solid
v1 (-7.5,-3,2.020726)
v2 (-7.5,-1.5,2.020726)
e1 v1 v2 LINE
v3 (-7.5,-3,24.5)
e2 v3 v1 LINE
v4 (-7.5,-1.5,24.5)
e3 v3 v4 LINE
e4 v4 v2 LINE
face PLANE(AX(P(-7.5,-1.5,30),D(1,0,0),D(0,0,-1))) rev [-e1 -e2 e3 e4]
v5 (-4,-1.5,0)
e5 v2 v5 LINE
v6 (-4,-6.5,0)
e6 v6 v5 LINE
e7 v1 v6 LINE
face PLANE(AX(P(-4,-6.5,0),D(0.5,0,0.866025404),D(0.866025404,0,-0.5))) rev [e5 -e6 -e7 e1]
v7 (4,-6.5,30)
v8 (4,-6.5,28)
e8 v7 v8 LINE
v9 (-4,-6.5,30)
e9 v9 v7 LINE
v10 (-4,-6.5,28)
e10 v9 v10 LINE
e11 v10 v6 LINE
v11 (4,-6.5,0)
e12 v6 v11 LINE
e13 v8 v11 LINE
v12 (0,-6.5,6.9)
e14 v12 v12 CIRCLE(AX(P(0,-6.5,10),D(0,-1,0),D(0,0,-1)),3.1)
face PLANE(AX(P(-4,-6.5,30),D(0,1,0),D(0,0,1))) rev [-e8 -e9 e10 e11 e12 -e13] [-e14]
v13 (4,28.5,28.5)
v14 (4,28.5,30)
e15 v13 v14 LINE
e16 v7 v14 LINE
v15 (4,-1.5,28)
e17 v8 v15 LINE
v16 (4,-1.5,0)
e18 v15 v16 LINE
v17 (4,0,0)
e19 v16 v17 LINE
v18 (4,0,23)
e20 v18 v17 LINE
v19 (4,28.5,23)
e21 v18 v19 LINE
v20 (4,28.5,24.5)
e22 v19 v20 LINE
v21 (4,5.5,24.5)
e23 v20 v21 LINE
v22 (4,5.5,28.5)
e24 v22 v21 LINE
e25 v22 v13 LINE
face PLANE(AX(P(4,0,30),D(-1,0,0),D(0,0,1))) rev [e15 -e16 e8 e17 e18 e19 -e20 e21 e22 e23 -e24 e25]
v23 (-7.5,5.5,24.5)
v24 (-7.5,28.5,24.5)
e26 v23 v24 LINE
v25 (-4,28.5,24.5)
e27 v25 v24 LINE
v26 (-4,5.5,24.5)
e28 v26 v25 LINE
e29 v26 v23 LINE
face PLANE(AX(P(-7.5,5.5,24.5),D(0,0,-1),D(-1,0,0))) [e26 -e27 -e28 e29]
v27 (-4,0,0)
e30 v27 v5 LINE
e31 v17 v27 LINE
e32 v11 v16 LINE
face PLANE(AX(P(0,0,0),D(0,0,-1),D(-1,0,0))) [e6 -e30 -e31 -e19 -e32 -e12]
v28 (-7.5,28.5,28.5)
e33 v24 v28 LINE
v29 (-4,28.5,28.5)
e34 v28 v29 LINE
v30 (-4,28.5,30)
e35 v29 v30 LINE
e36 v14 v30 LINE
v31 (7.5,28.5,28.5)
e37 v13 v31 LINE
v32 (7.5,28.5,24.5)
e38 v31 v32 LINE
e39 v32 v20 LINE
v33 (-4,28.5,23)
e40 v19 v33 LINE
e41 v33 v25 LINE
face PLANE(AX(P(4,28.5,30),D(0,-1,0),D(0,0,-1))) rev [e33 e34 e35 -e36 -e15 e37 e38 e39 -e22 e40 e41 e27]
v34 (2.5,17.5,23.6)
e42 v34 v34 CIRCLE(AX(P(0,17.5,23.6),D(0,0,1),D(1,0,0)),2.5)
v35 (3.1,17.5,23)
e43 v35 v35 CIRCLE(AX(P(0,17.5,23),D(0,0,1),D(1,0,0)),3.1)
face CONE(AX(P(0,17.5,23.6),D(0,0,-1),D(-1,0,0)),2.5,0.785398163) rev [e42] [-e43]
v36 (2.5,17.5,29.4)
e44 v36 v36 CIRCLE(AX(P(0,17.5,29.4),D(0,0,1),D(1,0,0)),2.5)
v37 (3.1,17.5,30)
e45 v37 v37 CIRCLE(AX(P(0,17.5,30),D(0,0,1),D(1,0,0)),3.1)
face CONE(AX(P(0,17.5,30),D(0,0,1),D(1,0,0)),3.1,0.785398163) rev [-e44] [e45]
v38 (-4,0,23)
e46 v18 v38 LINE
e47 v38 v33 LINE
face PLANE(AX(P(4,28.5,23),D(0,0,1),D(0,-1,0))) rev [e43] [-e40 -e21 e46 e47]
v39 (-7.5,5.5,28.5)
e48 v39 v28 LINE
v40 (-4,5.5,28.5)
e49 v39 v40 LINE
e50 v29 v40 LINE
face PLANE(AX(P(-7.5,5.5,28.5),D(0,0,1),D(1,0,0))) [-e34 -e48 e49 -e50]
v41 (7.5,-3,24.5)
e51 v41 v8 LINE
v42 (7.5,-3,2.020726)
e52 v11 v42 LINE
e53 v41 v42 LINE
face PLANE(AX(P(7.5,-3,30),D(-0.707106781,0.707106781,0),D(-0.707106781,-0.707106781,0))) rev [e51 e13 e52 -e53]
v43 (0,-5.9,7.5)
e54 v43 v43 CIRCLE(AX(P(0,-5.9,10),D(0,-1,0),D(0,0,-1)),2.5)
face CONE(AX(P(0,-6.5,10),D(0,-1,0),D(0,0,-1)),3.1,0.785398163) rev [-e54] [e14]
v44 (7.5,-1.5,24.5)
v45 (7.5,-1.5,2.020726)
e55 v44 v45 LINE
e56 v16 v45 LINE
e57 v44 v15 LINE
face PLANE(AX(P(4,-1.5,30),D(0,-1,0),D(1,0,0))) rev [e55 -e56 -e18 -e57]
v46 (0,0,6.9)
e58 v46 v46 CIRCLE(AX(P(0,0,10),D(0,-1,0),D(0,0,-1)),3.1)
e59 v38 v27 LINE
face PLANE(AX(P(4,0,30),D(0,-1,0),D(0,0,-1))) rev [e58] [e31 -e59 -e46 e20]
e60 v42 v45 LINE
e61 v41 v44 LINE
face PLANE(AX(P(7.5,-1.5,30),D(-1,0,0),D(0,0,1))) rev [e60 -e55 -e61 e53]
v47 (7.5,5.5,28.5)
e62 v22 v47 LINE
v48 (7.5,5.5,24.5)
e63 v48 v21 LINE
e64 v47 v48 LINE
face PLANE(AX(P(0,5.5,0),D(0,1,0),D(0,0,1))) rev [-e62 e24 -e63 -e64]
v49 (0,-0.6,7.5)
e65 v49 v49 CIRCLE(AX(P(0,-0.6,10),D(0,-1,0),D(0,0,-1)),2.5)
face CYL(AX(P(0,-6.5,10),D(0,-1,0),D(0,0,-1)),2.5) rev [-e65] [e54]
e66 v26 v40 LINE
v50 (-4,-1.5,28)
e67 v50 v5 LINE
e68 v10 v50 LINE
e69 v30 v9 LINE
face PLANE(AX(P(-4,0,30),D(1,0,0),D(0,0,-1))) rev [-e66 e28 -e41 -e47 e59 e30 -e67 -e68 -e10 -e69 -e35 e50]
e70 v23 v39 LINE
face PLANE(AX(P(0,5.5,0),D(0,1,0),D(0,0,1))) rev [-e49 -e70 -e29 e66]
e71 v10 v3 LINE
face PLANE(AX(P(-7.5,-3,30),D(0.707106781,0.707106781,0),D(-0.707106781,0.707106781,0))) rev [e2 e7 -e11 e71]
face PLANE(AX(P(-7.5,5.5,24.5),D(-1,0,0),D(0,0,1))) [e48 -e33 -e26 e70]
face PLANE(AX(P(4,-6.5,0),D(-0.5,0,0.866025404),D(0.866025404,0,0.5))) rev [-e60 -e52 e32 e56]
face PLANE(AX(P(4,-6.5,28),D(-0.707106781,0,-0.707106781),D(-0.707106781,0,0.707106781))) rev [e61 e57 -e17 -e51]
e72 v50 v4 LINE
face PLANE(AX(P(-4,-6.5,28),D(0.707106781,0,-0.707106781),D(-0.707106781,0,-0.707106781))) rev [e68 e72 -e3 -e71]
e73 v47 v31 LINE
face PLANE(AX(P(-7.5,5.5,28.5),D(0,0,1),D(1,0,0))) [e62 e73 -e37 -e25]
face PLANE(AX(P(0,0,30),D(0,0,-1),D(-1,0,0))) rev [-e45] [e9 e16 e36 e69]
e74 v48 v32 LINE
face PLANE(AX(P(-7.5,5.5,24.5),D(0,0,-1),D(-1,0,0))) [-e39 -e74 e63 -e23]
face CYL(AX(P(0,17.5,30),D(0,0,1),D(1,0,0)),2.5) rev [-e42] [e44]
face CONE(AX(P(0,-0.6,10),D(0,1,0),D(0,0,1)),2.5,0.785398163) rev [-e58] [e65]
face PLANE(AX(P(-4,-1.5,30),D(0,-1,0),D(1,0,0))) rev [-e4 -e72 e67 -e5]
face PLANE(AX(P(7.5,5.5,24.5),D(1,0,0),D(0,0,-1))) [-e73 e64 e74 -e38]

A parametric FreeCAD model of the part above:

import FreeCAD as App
import Part
import Sketcher
Q = App.Units.Quantity

doc = App.newDocument("Part")
body = doc.addObject("PartDesign::Body", "Body")

# Sketch on XY plane
sketch1 = body.newObject("Sketcher::SketchObject", "Sketch")
sketch1.AttachmentSupport = (doc.getObject("XY_Plane"), [""])
sketch1.MapMode = "FlatFace"
sketch1.addGeometry(Part.LineSegment(App.Vector(4, 0, 0), App.Vector(-4, 0, 0)), False)
sketch1.addGeometry(Part.LineSegment(App.Vector(-4, 0, 0), App.Vector(-4, -1.5, 0)), False)
sketch1.addGeometry(Part.LineSegment(App.Vector(-4, -1.5, 0), App.Vector(-7.5, -1.5, 0)), False)
sketch1.addGeometry(Part.LineSegment(App.Vector(-7.5, -1.5, 0), App.Vector(-7.5, -3, 0)), False)
sketch1.addGeometry(Part.LineSegment(App.Vector(-7.5, -3, 0), App.Vector(-4, -6.5, 0)), False)
sketch1.addGeometry(Part.LineSegment(App.Vector(-4, -6.5, 0), App.Vector(4, -6.5, 0)), False)
sketch1.addGeometry(Part.LineSegment(App.Vector(4, -6.5, 0), App.Vector(7.5, -3, 0)), False)
sketch1.addGeometry(Part.LineSegment(App.Vector(7.5, -3, 0), App.Vector(7.5, -1.5, 0)), False)
sketch1.addGeometry(Part.LineSegment(App.Vector(7.5, -1.5, 0), App.Vector(4, -1.5, 0)), False)
sketch1.addGeometry(Part.LineSegment(App.Vector(4, -1.5, 0), App.Vector(4, 0, 0)), False)
sketch1.addConstraint(Sketcher.Constraint("Coincident", 0, 2, 1, 1))
sketch1.addConstraint(Sketcher.Constraint("Coincident", 1, 2, 2, 1))
sketch1.addConstraint(Sketcher.Constraint("Coincident", 2, 2, 3, 1))
sketch1.addConstraint(Sketcher.Constraint("Coincident", 3, 2, 4, 1))
sketch1.addConstraint(Sketcher.Constraint("Coincident", 4, 2, 5, 1))
sketch1.addConstraint(Sketcher.Constraint("Coincident", 5, 2, 6, 1))
sketch1.addConstraint(Sketcher.Constraint("Coincident", 6, 2, 7, 1))
sketch1.addConstraint(Sketcher.Constraint("Coincident", 7, 2, 8, 1))
sketch1.addConstraint(Sketcher.Constraint("Coincident", 8, 2, 9, 1))
sketch1.addConstraint(Sketcher.Constraint("Coincident", 9, 2, 0, 1))
sketch1.addConstraint(Sketcher.Constraint("Horizontal", 0))
sketch1.addConstraint(Sketcher.Constraint("Vertical", 1))
sketch1.addConstraint(Sketcher.Constraint("Horizontal", 2))
sketch1.addConstraint(Sketcher.Constraint("Vertical", 3))
sketch1.addConstraint(Sketcher.Constraint("Horizontal", 5))
sketch1.addConstraint(Sketcher.Constraint("Vertical", 7))
sketch1.addConstraint(Sketcher.Constraint("Horizontal", 8))
sketch1.addConstraint(Sketcher.Constraint("Vertical", 9))
sketch1.addConstraint(Sketcher.Constraint("Symmetric", 0, 2, 9, 2, -1, 1))
sketch1.addConstraint(Sketcher.Constraint("Symmetric", 3, 2, 6, 2, -2))
sketch1.addConstraint(Sketcher.Constraint("Perpendicular", 4, 6))
sketch1.addConstraint(Sketcher.Constraint("Horizontal", 2, 2, 7, 2))
sketch1.addConstraint(Sketcher.Constraint("Vertical", 1, 2, 4, 2))
sketch1.addConstraint(Sketcher.Constraint("Vertical", 5, 2, 8, 2))
sketch1.addConstraint(Sketcher.Constraint("Equal", 1, 3))
sketch1.addConstraint(Sketcher.Constraint("DistanceX", 0, 2, 0, 1, Q("8 mm")))
sketch1.addConstraint(Sketcher.Constraint("DistanceX", 2, 2, 2, 1, Q("3.5 mm")))
sketch1.addConstraint(Sketcher.Constraint("DistanceY", 1, 2, 1, 1, Q("1.5 mm")))
pad1 = body.newObject("PartDesign::Pad", "Pad")
pad1.Profile = sketch1
pad1.Length = 30

# Sketch on YZ plane
sketch2 = body.newObject("Sketcher::SketchObject", "Sketch001")
sketch2.AttachmentSupport = (doc.getObject("YZ_Plane"), [""])
sketch2.MapMode = "FlatFace"
sketch2.addGeometry(Part.LineSegment(App.Vector(28.5, 30, 0), App.Vector(-6.5, 30, 0)), False)
sketch2.addGeometry(Part.LineSegment(App.Vector(-6.5, 30, 0), App.Vector(-6.5, 23, 0)), False)
sketch2.addGeometry(Part.LineSegment(App.Vector(-6.5, 23, 0), App.Vector(28.5, 23, 0)), False)
sketch2.addGeometry(Part.LineSegment(App.Vector(28.5, 23, 0), App.Vector(28.5, 30, 0)), False)
sketch2.addConstraint(Sketcher.Constraint("Coincident", 0, 2, 1, 1))
sketch2.addConstraint(Sketcher.Constraint("Coincident", 1, 2, 2, 1))
sketch2.addConstraint(Sketcher.Constraint("Coincident", 2, 2, 3, 1))
sketch2.addConstraint(Sketcher.Constraint("Coincident", 3, 2, 0, 1))
sketch2.addConstraint(Sketcher.Constraint("Horizontal", 0))
sketch2.addConstraint(Sketcher.Constraint("Vertical", 1))
sketch2.addConstraint(Sketcher.Constraint("Horizontal", 2))
sketch2.addConstraint(Sketcher.Constraint("Vertical", 3))
sketch2.addConstraint(Sketcher.Constraint("DistanceX", 0, 2, 0, 1, Q("35 mm")))
sketch2.addConstraint(Sketcher.Constraint("DistanceY", 1, 2, 1, 1, Q("7 mm")))
sketch2.addConstraint(Sketcher.Constraint("DistanceY", -1, 1, 0, 2, Q("30 mm")))
sketch2.addConstraint(Sketcher.Constraint("DistanceX", 0, 2, -1, 1, Q("6.5 mm")))
pad2 = body.newObject("PartDesign::Pad", "Pad001")
pad2.Profile = sketch2
pad2.Length = 8
pad2.Midplane = True

# Sketch on XZ plane
sketch3 = body.newObject("Sketcher::SketchObject", "Sketch002")
sketch3.AttachmentSupport = (doc.getObject("XZ_Plane"), [""])
sketch3.MapMode = "FlatFace"
sketch3.AttachmentOffset = App.Placement(App.Vector(0, 0, 1.5), App.Rotation())
sketch3.addGeometry(Part.LineSegment(App.Vector(-7.5, 2.020726, 0), App.Vector(-4, 0, 0)), False)
sketch3.addGeometry(Part.LineSegment(App.Vector(-4, 0, 0), App.Vector(-7.5, 0, 0)), False)
sketch3.addGeometry(Part.LineSegment(App.Vector(-7.5, 0, 0), App.Vector(-7.5, 2.020726, 0)), False)
sketch3.addGeometry(Part.LineSegment(App.Vector(-4, 28, 0), App.Vector(-7.5, 24.5, 0)), False)
sketch3.addGeometry(Part.LineSegment(App.Vector(-7.5, 24.5, 0), App.Vector(-7.5, 30, 0)), False)
sketch3.addGeometry(Part.LineSegment(App.Vector(-7.5, 30, 0), App.Vector(-4, 30, 0)), False)
sketch3.addGeometry(Part.LineSegment(App.Vector(-4, 30, 0), App.Vector(-4, 28, 0)), False)
sketch3.addGeometry(Part.LineSegment(App.Vector(4, 28, 0), App.Vector(4, 30, 0)), False)
sketch3.addGeometry(Part.LineSegment(App.Vector(4, 30, 0), App.Vector(7.5, 30, 0)), False)
sketch3.addGeometry(Part.LineSegment(App.Vector(7.5, 30, 0), App.Vector(7.5, 24.5, 0)), False)
sketch3.addGeometry(Part.LineSegment(App.Vector(7.5, 24.5, 0), App.Vector(4, 28, 0)), False)
sketch3.addGeometry(Part.LineSegment(App.Vector(7.5, 0, 0), App.Vector(4, 0, 0)), False)
sketch3.addGeometry(Part.LineSegment(App.Vector(4, 0, 0), App.Vector(7.5, 2.020726, 0)), False)
sketch3.addGeometry(Part.LineSegment(App.Vector(7.5, 2.020726, 0), App.Vector(7.5, 0, 0)), False)
sketch3.addConstraint(Sketcher.Constraint("Coincident", 0, 2, 1, 1))
sketch3.addConstraint(Sketcher.Constraint("Coincident", 1, 2, 2, 1))
sketch3.addConstraint(Sketcher.Constraint("Coincident", 2, 2, 0, 1))
sketch3.addConstraint(Sketcher.Constraint("Coincident", 3, 2, 4, 1))
sketch3.addConstraint(Sketcher.Constraint("Coincident", 4, 2, 5, 1))
sketch3.addConstraint(Sketcher.Constraint("Coincident", 5, 2, 6, 1))
sketch3.addConstraint(Sketcher.Constraint("Coincident", 6, 2, 3, 1))
sketch3.addConstraint(Sketcher.Constraint("Coincident", 7, 2, 8, 1))
sketch3.addConstraint(Sketcher.Constraint("Coincident", 8, 2, 9, 1))
sketch3.addConstraint(Sketcher.Constraint("Coincident", 9, 2, 10, 1))
sketch3.addConstraint(Sketcher.Constraint("Coincident", 10, 2, 7, 1))
sketch3.addConstraint(Sketcher.Constraint("Coincident", 11, 2, 12, 1))
sketch3.addConstraint(Sketcher.Constraint("Coincident", 12, 2, 13, 1))
sketch3.addConstraint(Sketcher.Constraint("Coincident", 13, 2, 11, 1))
sketch3.addConstraint(Sketcher.Constraint("Horizontal", 1))
sketch3.addConstraint(Sketcher.Constraint("Vertical", 2))
sketch3.addConstraint(Sketcher.Constraint("Vertical", 4))
sketch3.addConstraint(Sketcher.Constraint("Horizontal", 5))
sketch3.addConstraint(Sketcher.Constraint("Vertical", 6))
sketch3.addConstraint(Sketcher.Constraint("Vertical", 7))
sketch3.addConstraint(Sketcher.Constraint("Horizontal", 8))
sketch3.addConstraint(Sketcher.Constraint("Vertical", 9))
sketch3.addConstraint(Sketcher.Constraint("Horizontal", 11))
sketch3.addConstraint(Sketcher.Constraint("Vertical", 13))
sketch3.addConstraint(Sketcher.Constraint("Symmetric", 0, 2, 11, 2, -1, 1))
sketch3.addConstraint(Sketcher.Constraint("Symmetric", 5, 2, 7, 2, -2))
sketch3.addConstraint(Sketcher.Constraint("Symmetric", 3, 2, 9, 2, -2))
sketch3.addConstraint(Sketcher.Constraint("Symmetric", 2, 2, 12, 2, -2))
sketch3.addConstraint(Sketcher.Constraint("PointOnObject", 0, 2, -1))
sketch3.addConstraint(Sketcher.Constraint("Perpendicular", 3, 10))
sketch3.addConstraint(Sketcher.Constraint("Horizontal", 6, 2, 10, 2))
sketch3.addConstraint(Sketcher.Constraint("Vertical", 2, 2, 3, 2))
sketch3.addConstraint(Sketcher.Constraint("Vertical", 0, 2, 5, 2))
sketch3.addConstraint(Sketcher.Constraint("DistanceY", 6, 2, 6, 1, Q("2 mm")))
sketch3.addConstraint(Sketcher.Constraint("Angle", 0, Q("-30 deg")))
sketch3.addConstraint(Sketcher.Constraint("DistanceX", 1, 2, 1, 1, Q("3.5 mm")))
sketch3.addConstraint(Sketcher.Constraint("DistanceX", 0, 2, -1, 1, Q("4 mm")))
sketch3.addConstraint(Sketcher.Constraint("DistanceY", -1, 1, 4, 2, Q("30 mm")))
pocket1 = body.newObject("PartDesign::Pocket", "Pocket")
pocket1.Profile = sketch3
pocket1.Type = "ThroughAll"
pocket1.Reversed = True

# Sketch on XZ plane
sketch4 = body.newObject("Sketcher::SketchObject", "Sketch003")
sketch4.AttachmentSupport = (doc.getObject("XZ_Plane"), [""])
sketch4.MapMode = "FlatFace"
sketch4.AttachmentOffset = App.Placement(App.Vector(0, 0, -28.5), App.Rotation())
sketch4.addGeometry(Part.LineSegment(App.Vector(-7.5, 24.5, 0), App.Vector(-7.5, 28.5, 0)), False)
sketch4.addGeometry(Part.LineSegment(App.Vector(-7.5, 28.5, 0), App.Vector(7.5, 28.5, 0)), False)
sketch4.addGeometry(Part.LineSegment(App.Vector(7.5, 28.5, 0), App.Vector(7.5, 24.5, 0)), False)
sketch4.addGeometry(Part.LineSegment(App.Vector(7.5, 24.5, 0), App.Vector(-7.5, 24.5, 0)), False)
sketch4.addConstraint(Sketcher.Constraint("Coincident", 0, 2, 1, 1))
sketch4.addConstraint(Sketcher.Constraint("Coincident", 1, 2, 2, 1))
sketch4.addConstraint(Sketcher.Constraint("Coincident", 2, 2, 3, 1))
sketch4.addConstraint(Sketcher.Constraint("Coincident", 3, 2, 0, 1))
sketch4.addConstraint(Sketcher.Constraint("Vertical", 0))
sketch4.addConstraint(Sketcher.Constraint("Horizontal", 1))
sketch4.addConstraint(Sketcher.Constraint("Vertical", 2))
sketch4.addConstraint(Sketcher.Constraint("Horizontal", 3))
sketch4.addConstraint(Sketcher.Constraint("DistanceX", 1, 1, 1, 2, Q("15 mm")))
sketch4.addConstraint(Sketcher.Constraint("DistanceY", 0, 1, 0, 2, Q("4 mm")))
sketch4.addConstraint(Sketcher.Constraint("DistanceX", 0, 2, -1, 1, Q("7.5 mm")))
sketch4.addConstraint(Sketcher.Constraint("DistanceY", -1, 1, 0, 2, Q("28.5 mm")))
pad3 = body.newObject("PartDesign::Pad", "Pad002")
pad3.Profile = sketch4
pad3.Length = 23

# Sketch on YZ plane
sketch5 = body.newObject("Sketcher::SketchObject", "Sketch004")
sketch5.AttachmentSupport = (doc.getObject("YZ_Plane"), [""])
sketch5.MapMode = "FlatFace"
sketch5.addGeometry(Part.LineSegment(App.Vector(0, 10, 0), App.Vector(-6.5, 10, 0)), False)
sketch5.addGeometry(Part.LineSegment(App.Vector(-6.5, 10, 0), App.Vector(-6.5, 6.9, 0)), False)
sketch5.addGeometry(Part.LineSegment(App.Vector(-6.5, 6.9, 0), App.Vector(-5.9, 7.5, 0)), False)
sketch5.addGeometry(Part.LineSegment(App.Vector(-5.9, 7.5, 0), App.Vector(-0.6, 7.5, 0)), False)
sketch5.addGeometry(Part.LineSegment(App.Vector(-0.6, 7.5, 0), App.Vector(0, 6.9, 0)), False)
sketch5.addGeometry(Part.LineSegment(App.Vector(0, 6.9, 0), App.Vector(0, 10, 0)), False)
sketch5.addGeometry(Part.LineSegment(App.Vector(-6.5, 10, 0), App.Vector(0, 10, 0)), True)  # axis
sketch5.addConstraint(Sketcher.Constraint("Coincident", 0, 2, 1, 1))
sketch5.addConstraint(Sketcher.Constraint("Coincident", 1, 2, 2, 1))
sketch5.addConstraint(Sketcher.Constraint("Coincident", 2, 2, 3, 1))
sketch5.addConstraint(Sketcher.Constraint("Coincident", 3, 2, 4, 1))
sketch5.addConstraint(Sketcher.Constraint("Coincident", 4, 2, 5, 1))
sketch5.addConstraint(Sketcher.Constraint("Coincident", 5, 2, 0, 1))
sketch5.addConstraint(Sketcher.Constraint("Horizontal", 0))
sketch5.addConstraint(Sketcher.Constraint("Vertical", 1))
sketch5.addConstraint(Sketcher.Constraint("Horizontal", 3))
sketch5.addConstraint(Sketcher.Constraint("Vertical", 5))
sketch5.addConstraint(Sketcher.Constraint("Horizontal", 6))
sketch5.addConstraint(Sketcher.Constraint("Coincident", 6, 1, 0, 2))
sketch5.addConstraint(Sketcher.Constraint("PointOnObject", 4, 2, -2))
sketch5.addConstraint(Sketcher.Constraint("PointOnObject", 6, 2, -2))
sketch5.addConstraint(Sketcher.Constraint("Perpendicular", 2, 4))
sketch5.addConstraint(Sketcher.Constraint("Horizontal", 1, 2, 4, 2))
sketch5.addConstraint(Sketcher.Constraint("Equal", 2, 4))
sketch5.addConstraint(Sketcher.Constraint("DistanceX", 0, 2, 0, 1, Q("6.5 mm")))
sketch5.addConstraint(Sketcher.Constraint("DistanceX", 3, 1, 3, 2, Q("5.3 mm")))
sketch5.addConstraint(Sketcher.Constraint("DistanceY", 1, 2, 1, 1, Q("3.1 mm")))
sketch5.addConstraint(Sketcher.Constraint("DistanceY", -1, 1, 0, 2, Q("10 mm")))
groove = body.newObject("PartDesign::Groove", "Groove")
groove.Profile = sketch5
groove.ReferenceAxis = (sketch5, ["Axis0"])
groove.Angle = 360

# Sketch on YZ plane
sketch6 = body.newObject("Sketcher::SketchObject", "Sketch005")
sketch6.AttachmentSupport = (doc.getObject("YZ_Plane"), [""])
sketch6.MapMode = "FlatFace"
sketch6.addGeometry(Part.LineSegment(App.Vector(17.5, 23, 0), App.Vector(17.5, 30, 0)), False)
sketch6.addGeometry(Part.LineSegment(App.Vector(17.5, 30, 0), App.Vector(14.4, 30, 0)), False)
sketch6.addGeometry(Part.LineSegment(App.Vector(14.4, 30, 0), App.Vector(15, 29.4, 0)), False)
sketch6.addGeometry(Part.LineSegment(App.Vector(15, 29.4, 0), App.Vector(15, 23.6, 0)), False)
sketch6.addGeometry(Part.LineSegment(App.Vector(15, 23.6, 0), App.Vector(14.4, 23, 0)), False)
sketch6.addGeometry(Part.LineSegment(App.Vector(14.4, 23, 0), App.Vector(17.5, 23, 0)), False)
sketch6.addGeometry(Part.LineSegment(App.Vector(17.5, 30, 0), App.Vector(17.5, 23, 0)), True)  # axis
sketch6.addConstraint(Sketcher.Constraint("Coincident", 0, 2, 1, 1))
sketch6.addConstraint(Sketcher.Constraint("Coincident", 1, 2, 2, 1))
sketch6.addConstraint(Sketcher.Constraint("Coincident", 2, 2, 3, 1))
sketch6.addConstraint(Sketcher.Constraint("Coincident", 3, 2, 4, 1))
sketch6.addConstraint(Sketcher.Constraint("Coincident", 4, 2, 5, 1))
sketch6.addConstraint(Sketcher.Constraint("Coincident", 5, 2, 0, 1))
sketch6.addConstraint(Sketcher.Constraint("Vertical", 0))
sketch6.addConstraint(Sketcher.Constraint("Horizontal", 1))
sketch6.addConstraint(Sketcher.Constraint("Vertical", 3))
sketch6.addConstraint(Sketcher.Constraint("Horizontal", 5))
sketch6.addConstraint(Sketcher.Constraint("Vertical", 6))
sketch6.addConstraint(Sketcher.Constraint("Coincident", 6, 1, 0, 2))
sketch6.addConstraint(Sketcher.Constraint("Perpendicular", 2, 4))
sketch6.addConstraint(Sketcher.Constraint("Horizontal", 4, 2, 6, 2))
sketch6.addConstraint(Sketcher.Constraint("Vertical", 1, 2, 4, 2))
sketch6.addConstraint(Sketcher.Constraint("Equal", 2, 4))
sketch6.addConstraint(Sketcher.Constraint("DistanceY", 0, 1, 0, 2, Q("7 mm")))
sketch6.addConstraint(Sketcher.Constraint("DistanceX", 1, 2, 1, 1, Q("3.1 mm")))
sketch6.addConstraint(Sketcher.Constraint("DistanceY", 3, 2, 3, 1, Q("5.8 mm")))
sketch6.addConstraint(Sketcher.Constraint("DistanceY", -1, 1, 0, 2, Q("30 mm")))
sketch6.addConstraint(Sketcher.Constraint("DistanceX", -1, 1, 2, 2, Q("15 mm")))
groove2 = body.newObject("PartDesign::Groove", "Groove001")
groove2.Profile = sketch6
groove2.ReferenceAxis = (sketch6, ["Axis0"])
groove2.Angle = 360

doc.recompute()
